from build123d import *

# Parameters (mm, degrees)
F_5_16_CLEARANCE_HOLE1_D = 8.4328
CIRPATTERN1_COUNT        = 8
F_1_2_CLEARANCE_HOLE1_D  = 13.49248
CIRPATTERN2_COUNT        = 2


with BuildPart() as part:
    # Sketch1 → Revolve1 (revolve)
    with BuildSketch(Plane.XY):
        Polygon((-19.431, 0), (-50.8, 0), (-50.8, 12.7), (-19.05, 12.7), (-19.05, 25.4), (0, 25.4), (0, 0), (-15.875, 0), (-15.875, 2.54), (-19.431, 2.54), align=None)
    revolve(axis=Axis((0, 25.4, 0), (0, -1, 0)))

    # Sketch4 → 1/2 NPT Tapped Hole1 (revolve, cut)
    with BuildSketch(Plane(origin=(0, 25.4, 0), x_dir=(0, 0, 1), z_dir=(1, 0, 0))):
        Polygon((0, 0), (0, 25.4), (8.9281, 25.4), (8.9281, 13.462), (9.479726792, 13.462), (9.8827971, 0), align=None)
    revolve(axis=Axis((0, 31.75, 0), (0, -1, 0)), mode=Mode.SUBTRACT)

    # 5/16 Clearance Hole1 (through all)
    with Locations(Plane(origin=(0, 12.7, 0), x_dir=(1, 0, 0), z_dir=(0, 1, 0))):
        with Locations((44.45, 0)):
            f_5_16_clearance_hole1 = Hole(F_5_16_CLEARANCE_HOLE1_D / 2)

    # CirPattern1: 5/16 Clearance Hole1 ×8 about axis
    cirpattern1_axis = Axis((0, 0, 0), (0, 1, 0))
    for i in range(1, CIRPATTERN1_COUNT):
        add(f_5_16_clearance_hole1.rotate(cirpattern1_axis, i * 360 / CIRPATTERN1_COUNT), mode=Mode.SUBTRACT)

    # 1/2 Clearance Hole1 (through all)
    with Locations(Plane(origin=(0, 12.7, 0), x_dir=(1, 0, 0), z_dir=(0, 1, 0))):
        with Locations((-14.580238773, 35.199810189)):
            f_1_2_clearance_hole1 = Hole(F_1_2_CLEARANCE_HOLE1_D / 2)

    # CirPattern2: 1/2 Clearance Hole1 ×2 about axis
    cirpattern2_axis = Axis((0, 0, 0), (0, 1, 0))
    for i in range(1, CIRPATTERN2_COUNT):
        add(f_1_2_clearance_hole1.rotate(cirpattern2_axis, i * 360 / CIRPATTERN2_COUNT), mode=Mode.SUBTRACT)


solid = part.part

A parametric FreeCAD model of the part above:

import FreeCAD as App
import Part
import Sketcher
from FreeCAD import Vector
Q = App.Units.Quantity

doc = App.newDocument("Part")
body = doc.addObject("PartDesign::Body", "Body")

# Sketch on XY plane
sketch1 = body.newObject("Sketcher::SketchObject", "Sketch")
sketch1.AttachmentSupport = (doc.getObject("XY_Plane"), [""])
sketch1.MapMode = "FlatFace"
sketch1.addGeometry([
    Part.LineSegment(Vector(-50.8, 0, 0), Vector(-19.4, 0, 0)),  # 0
    Part.LineSegment(Vector(-19.4, 0, 0), Vector(-19.4, 2.5, 0)),  # 1
    Part.LineSegment(Vector(-19.4, 2.5, 0), Vector(-15.9, 2.5, 0)),  # 2
    Part.LineSegment(Vector(-15.9, 2.5, 0), Vector(-15.9, 0, 0)),  # 3
    Part.LineSegment(Vector(-15.9, 0, 0), Vector(0, 0, 0)),  # 4
    Part.LineSegment(Vector(0, 0, 0), Vector(0, 25.4, 0)),  # 5
    Part.LineSegment(Vector(0, 25.4, 0), Vector(-19.1, 25.4, 0)),  # 6
    Part.LineSegment(Vector(-19.1, 25.4, 0), Vector(-19.1, 12.7, 0)),  # 7
    Part.LineSegment(Vector(-19.1, 12.7, 0), Vector(-50.8, 12.7, 0)),  # 8
    Part.LineSegment(Vector(-50.8, 12.7, 0), Vector(-50.8, 0, 0)),  # 9
], False)
sketch1.addConstraint([
    Sketcher.Constraint("Coincident", 0, 2, 1, 1),
    Sketcher.Constraint("Coincident", 1, 2, 2, 1),
    Sketcher.Constraint("Coincident", 2, 2, 3, 1),
    Sketcher.Constraint("Coincident", 3, 2, 4, 1),
    Sketcher.Constraint("Coincident", 4, 2, 5, 1),
    Sketcher.Constraint("Coincident", 5, 2, 6, 1),
    Sketcher.Constraint("Coincident", 6, 2, 7, 1),
    Sketcher.Constraint("Coincident", 7, 2, 8, 1),
    Sketcher.Constraint("Coincident", 8, 2, 9, 1),
    Sketcher.Constraint("Coincident", 9, 2, 0, 1),
    Sketcher.Constraint("Horizontal", 0),
    Sketcher.Constraint("Vertical", 1),
    Sketcher.Constraint("Horizontal", 2),
    Sketcher.Constraint("Vertical", 3),
    Sketcher.Constraint("Horizontal", 4),
    Sketcher.Constraint("Vertical", 5),
    Sketcher.Constraint("Horizontal", 6),
    Sketcher.Constraint("Vertical", 7),
    Sketcher.Constraint("Horizontal", 8),
    Sketcher.Constraint("Vertical", 9),
    Sketcher.Constraint("Coincident", 4, 2, -1, 1),
    Sketcher.Constraint("PointOnObject", 0, 2, -1),
    Sketcher.Constraint("Equal", 7, 9),
    Sketcher.Constraint("DistanceY", 5, 1, 5, 2, Q("1 in")),
    Sketcher.Constraint("DistanceY", 1, 1, 1, 2, Q("0.1 in")),
    Sketcher.Constraint("DistanceX", 8, 2, -1, 1, Q("2 in")),
    Sketcher.Constraint("DistanceX", 2, 1, 2, 2, Q("0.14 in")),
    Sketcher.Constraint("DistanceX", 6, 2, 6, 1, Q("0.75 in")),
    Sketcher.Constraint("DistanceX", 0, 1, 0, 2, Q("1.235 in")),
])
revolution = body.newObject("PartDesign::Revolution", "Revolution")
revolution.Profile = sketch1
revolution.ReferenceAxis = (sketch1, ["V_Axis"])
revolution.Angle = 360

# Sketch on YZ plane
sketch2 = body.newObject("Sketcher::SketchObject", "Sketch001")
sketch2.AttachmentSupport = (doc.getObject("YZ_Plane"), [""])
sketch2.MapMode = "FlatFace"
sketch2.addGeometry([
    Part.LineSegment(Vector(0, 0, 0), Vector(25.4, 0, 0)),  # 0
    Part.LineSegment(Vector(25.4, 0, 0), Vector(25.4, 9.9, 0)),  # 1
    Part.LineSegment(Vector(25.4, 9.9, 0), Vector(11.9, 9.5, 0)),  # 2
    Part.LineSegment(Vector(11.9, 9.5, 0), Vector(11.9, 8.9, 0)),  # 3
    Part.LineSegment(Vector(11.9, 8.9, 0), Vector(0, 8.9, 0)),  # 4
    Part.LineSegment(Vector(0, 8.9, 0), Vector(0, 0, 0)),  # 5
], False)
sketch2.addConstraint([
    Sketcher.Constraint("Coincident", 0, 2, 1, 1),
    Sketcher.Constraint("Coincident", 1, 2, 2, 1),
    Sketcher.Constraint("Coincident", 2, 2, 3, 1),
    Sketcher.Constraint("Coincident", 3, 2, 4, 1),
    Sketcher.Constraint("Coincident", 4, 2, 5, 1),
    Sketcher.Constraint("Coincident", 5, 2, 0, 1),
    Sketcher.Constraint("Horizontal", 0),
    Sketcher.Constraint("Vertical", 1),
    Sketcher.Constraint("Vertical", 3),
    Sketcher.Constraint("Horizontal", 4),
    Sketcher.Constraint("Vertical", 5),
    Sketcher.Constraint("Coincident", 5, 2, -1, 1),
    Sketcher.Constraint("DistanceX", 0, 1, 0, 2, Q("1 in")),
    Sketcher.Constraint("DistanceX", 4, 2, 4, 1, Q("0.47 in")),
    Sketcher.Constraint("DistanceY", 5, 2, 5, 1, Q("0.3515 in")),
    Sketcher.Constraint("DistanceY", 1, 1, 1, 2, Q("9.882797 mm")),
    Sketcher.Constraint("DistanceY", 3, 2, 3, 1, Q("0.551627 mm")),
])
groove = body.newObject("PartDesign::Groove", "Groove")
groove.Profile = sketch2
groove.ReferenceAxis = (sketch2, ["H_Axis"])
groove.Angle = 360

# Sketch on XZ plane
sketch3 = body.newObject("Sketcher::SketchObject", "Sketch002")
sketch3.AttachmentSupport = (doc.getObject("XZ_Plane"), [""])
sketch3.MapMode = "FlatFace"
sketch3.AttachmentOffset = App.Placement(Vector(0, 0, -0.5 * 25.4), App.Rotation())
sketch3.addGeometry(Part.Circle(Vector(44.5, 0, 0), Vector(0, 0, 1), 4.2), False)
sketch3.addConstraint([
    Sketcher.Constraint("PointOnObject", 0, 3, -1),
    Sketcher.Constraint("Diameter", 0, Q("0.332 in")),
    Sketcher.Constraint("DistanceX", -1, 1, 0, 3, Q("1.75 in")),
])
doc.recompute()
hole = body.newObject("PartDesign::Hole", "Hole")
hole.Profile = sketch3
hole.ThreadType = "None"
hole.Diameter = Q("0.332 in")
hole.DepthType = "ThroughAll"
hole.Reversed = True
doc.recompute()

polarpattern = body.newObject("PartDesign::PolarPattern", "PolarPattern")
polarpattern.Originals = [hole]
polarpattern.Axis = (doc.getObject("Y_Axis"), [""])
polarpattern.Angle = 360
polarpattern.Occurrences = 8
body.Tip = polarpattern

# Sketch on XZ plane
sketch4 = body.newObject("Sketcher::SketchObject", "Sketch003")
sketch4.AttachmentSupport = (doc.getObject("XZ_Plane"), [""])
sketch4.MapMode = "FlatFace"
sketch4.AttachmentOffset = App.Placement(Vector(0, 0, -0.5 * 25.4), App.Rotation())
sketch4.addGeometry(Part.Circle(Vector(-15, -35, 0), Vector(0, 0, 1), 7), False)
sketch4.addConstraint([
    Sketcher.Constraint("Diameter", 0, Q("0.5312 in")),
    Sketcher.Constraint("DistanceX", 0, 3, -1, 1, Q("14.580239 mm")),
    Sketcher.Constraint("DistanceY", 0, 3, -1, 1, Q("35.19981 mm")),
])
doc.recompute()
hole2 = body.newObject("PartDesign::Hole", "Hole001")
hole2.Profile = sketch4
hole2.ThreadType = "None"
hole2.Diameter = Q("0.5312 in")
hole2.DepthType = "ThroughAll"
hole2.Reversed = True
doc.recompute()

polarpattern2 = body.newObject("PartDesign::PolarPattern", "PolarPattern001")
polarpattern2.Originals = [hole2]
polarpattern2.Axis = (doc.getObject("Y_Axis"), [""])
polarpattern2.Angle = 360
polarpattern2.Occurrences = 2
body.Tip = polarpattern2

doc.recompute()
